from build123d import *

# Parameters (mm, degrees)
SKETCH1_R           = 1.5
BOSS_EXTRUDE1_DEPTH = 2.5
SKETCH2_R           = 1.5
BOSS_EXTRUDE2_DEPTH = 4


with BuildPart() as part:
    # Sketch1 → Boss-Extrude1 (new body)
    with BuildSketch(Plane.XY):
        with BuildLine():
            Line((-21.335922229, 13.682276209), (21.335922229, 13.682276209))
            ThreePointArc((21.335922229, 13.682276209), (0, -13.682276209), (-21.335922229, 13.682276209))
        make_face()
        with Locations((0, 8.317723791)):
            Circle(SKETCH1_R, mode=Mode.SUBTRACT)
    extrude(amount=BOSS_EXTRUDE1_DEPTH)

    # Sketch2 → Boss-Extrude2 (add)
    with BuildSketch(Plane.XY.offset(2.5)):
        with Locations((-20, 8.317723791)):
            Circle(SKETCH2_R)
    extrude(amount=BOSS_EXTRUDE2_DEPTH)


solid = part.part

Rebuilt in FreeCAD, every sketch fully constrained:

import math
import FreeCAD as App
import Part
import Sketcher

V = App.Vector

doc = App.newDocument("Part")
params = doc.addObject("Spreadsheet::Sheet", "Params")
for row, (alias, value) in enumerate([
    ("sketch1_diameter", "3 mm"),
    ("sketch1_radius", "22 mm"),
    ("pad1_length", "2.5 mm"),
    ("sketch2_diameter", "3 mm"),
    ("pad2_length", "4 mm"),
], start=1):
    params.set(f"A{row}", alias)
    params.set(f"B{row}", "=" + value)
    params.setAlias(f"B{row}", alias)

body = doc.addObject("PartDesign::Body", "Body")

# Sketch on XY plane
sketch1 = body.newObject("Sketcher::SketchObject", "Sketch")
sketch1.AttachmentSupport = (doc.getObject("XY_Plane"), [""])
sketch1.MapMode = "FlatFace"
sketch1.addGeometry([
    Part.LineSegment(V(21.335922, 13.682276, 0), V(-21.335922, 13.682276, 0)),
    Part.ArcOfCircle(Part.Circle(V(0, 8.317724, 0), V(0, 0, 1), 22), math.radians(165.886514), math.radians(374.113486)),
    Part.Circle(V(0, 8.317724, 0), V(0, 0, 1), 1.5),
], False)
sketch1.addConstraint([
    Sketcher.Constraint("Coincident", 0, 1, 1, 2),
    Sketcher.Constraint("Coincident", 1, 1, 0, 2),
    Sketcher.Constraint("Horizontal", 0),
    Sketcher.Constraint("Coincident", 2, 3, 1, 3),
    Sketcher.Constraint("PointOnObject", 1, 3, -2),
    Sketcher.Constraint("Diameter", 2, 3.0),
    Sketcher.Constraint("Radius", 1, 22.0),
    Sketcher.Constraint("DistanceX", 0, 2, 0, 1, 42.671844),
    Sketcher.Constraint("DistanceY", -1, 1, 1, 3, 8.317724),
])
sketch1.setExpression("Constraints[5]", "Params.sketch1_diameter")
sketch1.setExpression("Constraints[6]", "Params.sketch1_radius")
pad1 = body.newObject("PartDesign::Pad", "Pad")
pad1.Profile = sketch1
pad1.setExpression("Length", "Params.pad1_length")

# Sketch on XY plane
sketch2 = body.newObject("Sketcher::SketchObject", "Sketch001")
sketch2.AttachmentSupport = (doc.getObject("XY_Plane"), [""])
sketch2.MapMode = "FlatFace"
sketch2.AttachmentOffset = App.Placement(V(0, 0, 2.5), App.Rotation())
sketch2.addGeometry(Part.Circle(V(-20, 8.317724, 0), V(0, 0, 1), 1.5), False)
sketch2.addConstraint([
    Sketcher.Constraint("Diameter", 0, 3.0),
    Sketcher.Constraint("DistanceX", 0, 3, -1, 1, 20.0),
    Sketcher.Constraint("DistanceY", -1, 1, 0, 3, 8.317724),
])
sketch2.setExpression("Constraints[0]", "Params.sketch2_diameter")
pad2 = body.newObject("PartDesign::Pad", "Pad001")
pad2.Profile = sketch2
pad2.setExpression("Length", "Params.pad2_length")

doc.recompute()
